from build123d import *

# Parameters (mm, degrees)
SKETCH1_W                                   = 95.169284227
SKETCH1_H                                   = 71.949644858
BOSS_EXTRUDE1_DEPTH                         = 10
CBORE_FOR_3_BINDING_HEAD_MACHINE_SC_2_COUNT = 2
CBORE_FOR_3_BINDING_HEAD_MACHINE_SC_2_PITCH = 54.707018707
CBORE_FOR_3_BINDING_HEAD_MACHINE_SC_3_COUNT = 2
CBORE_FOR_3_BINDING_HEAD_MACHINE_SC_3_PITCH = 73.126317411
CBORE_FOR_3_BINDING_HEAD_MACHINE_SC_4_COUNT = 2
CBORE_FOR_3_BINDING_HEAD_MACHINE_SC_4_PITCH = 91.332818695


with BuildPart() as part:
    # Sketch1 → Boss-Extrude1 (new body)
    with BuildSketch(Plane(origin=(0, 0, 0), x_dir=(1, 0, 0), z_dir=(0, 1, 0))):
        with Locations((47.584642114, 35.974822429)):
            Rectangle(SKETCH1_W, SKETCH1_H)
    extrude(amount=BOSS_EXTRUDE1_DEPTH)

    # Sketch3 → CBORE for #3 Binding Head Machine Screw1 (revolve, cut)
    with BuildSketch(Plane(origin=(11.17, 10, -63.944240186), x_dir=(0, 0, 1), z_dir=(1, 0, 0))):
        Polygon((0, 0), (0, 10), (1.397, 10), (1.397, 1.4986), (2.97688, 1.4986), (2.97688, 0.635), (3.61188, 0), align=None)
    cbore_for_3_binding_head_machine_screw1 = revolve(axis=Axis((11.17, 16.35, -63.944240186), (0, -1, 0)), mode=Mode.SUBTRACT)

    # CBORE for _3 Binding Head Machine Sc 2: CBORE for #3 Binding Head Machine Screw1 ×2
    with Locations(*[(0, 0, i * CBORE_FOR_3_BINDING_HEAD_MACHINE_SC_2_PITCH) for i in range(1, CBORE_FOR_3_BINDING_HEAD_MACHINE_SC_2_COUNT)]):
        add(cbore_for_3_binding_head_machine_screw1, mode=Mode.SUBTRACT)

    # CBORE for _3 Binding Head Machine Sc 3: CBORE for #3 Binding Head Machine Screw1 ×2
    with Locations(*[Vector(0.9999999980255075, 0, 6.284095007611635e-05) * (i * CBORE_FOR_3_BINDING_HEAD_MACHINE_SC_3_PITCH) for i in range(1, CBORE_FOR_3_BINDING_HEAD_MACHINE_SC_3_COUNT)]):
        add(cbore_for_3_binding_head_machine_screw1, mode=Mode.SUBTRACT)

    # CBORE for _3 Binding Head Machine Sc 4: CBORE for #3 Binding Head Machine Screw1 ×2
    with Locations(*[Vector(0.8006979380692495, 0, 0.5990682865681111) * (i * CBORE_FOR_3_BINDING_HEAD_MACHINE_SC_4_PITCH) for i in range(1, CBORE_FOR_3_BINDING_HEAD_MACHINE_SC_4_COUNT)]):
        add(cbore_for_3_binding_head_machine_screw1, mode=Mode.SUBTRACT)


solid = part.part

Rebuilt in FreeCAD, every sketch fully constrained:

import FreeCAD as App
import Part
import Sketcher
Q = App.Units.Quantity


def add_polygon(sketch, points):
    """Adds a closed chain of lines whose ends are joined by coincident constraints."""
    first, n = sketch.GeometryCount, len(points)
    for a, b in zip(points, points[1:] + points[:1]):
        sketch.addGeometry(Part.LineSegment(App.Vector(*a, 0), App.Vector(*b, 0)), False)
    for i in range(n):
        sketch.addConstraint(Sketcher.Constraint("Coincident", first + i, 2, first + (i + 1) % n, 1))

doc = App.newDocument("Part")
body = doc.addObject("PartDesign::Body", "Body")

sketch1 = body.newObject("Sketcher::SketchObject", "Sketch")
sketch1.AttachmentSupport = (doc.getObject("XZ_Plane"), [""])
sketch1.MapMode = "FlatFace"
add_polygon(sketch1, [(0, -71.949645), (0, 0), (95.169284, 0), (95.169284, -71.949645)])
sketch1.addConstraint(Sketcher.Constraint("Vertical", 0))
sketch1.addConstraint(Sketcher.Constraint("Horizontal", 1))
sketch1.addConstraint(Sketcher.Constraint("Vertical", 2))
sketch1.addConstraint(Sketcher.Constraint("Horizontal", 3))
sketch1.addConstraint(Sketcher.Constraint("Coincident", 0, 2, -1, 1))
sketch1.addConstraint(Sketcher.Constraint("DistanceX", 1, 1, 1, 2, Q("95.169284 mm")))
sketch1.addConstraint(Sketcher.Constraint("DistanceY", 0, 1, 0, 2, Q("71.949645 mm")))
pad1 = body.newObject("PartDesign::Pad", "Pad")
pad1.Profile = sketch1
pad1.Length = 10
pad1.Reversed = True

sketch2 = body.newObject("Sketcher::SketchObject", "Sketch001")
sketch2.AttachmentSupport = (doc.getObject("YZ_Plane"), [""])
sketch2.MapMode = "FlatFace"
sketch2.AttachmentOffset = App.Placement(App.Vector(0, 0, 11.17), App.Rotation())
add_polygon(sketch2, [(0, -63.94424), (10, -63.94424), (10, -60.33236), (9.365, -60.96736), (8.5014, -60.96736), (8.5014, -62.54724), (0, -62.54724)])
sketch2.addGeometry(Part.LineSegment(App.Vector(10, -63.94424, 0), App.Vector(0, -63.94424, 0)), True)
sketch2.addConstraint(Sketcher.Constraint("Horizontal", 0))
sketch2.addConstraint(Sketcher.Constraint("Vertical", 1))
sketch2.addConstraint(Sketcher.Constraint("Horizontal", 3))
sketch2.addConstraint(Sketcher.Constraint("Vertical", 4))
sketch2.addConstraint(Sketcher.Constraint("Horizontal", 5))
sketch2.addConstraint(Sketcher.Constraint("Vertical", 6))
sketch2.addConstraint(Sketcher.Constraint("Horizontal", 7))
sketch2.addConstraint(Sketcher.Constraint("Coincident", 7, 1, 0, 2))
sketch2.addConstraint(Sketcher.Constraint("PointOnObject", 5, 2, -2))
sketch2.addConstraint(Sketcher.Constraint("PointOnObject", 7, 2, -2))
sketch2.addConstraint(Sketcher.Constraint("Angle", 2, Q("-135 deg")))
sketch2.addConstraint(Sketcher.Constraint("DistanceX", 3, 2, 3, 1, Q("0.034 in")))
sketch2.addConstraint(Sketcher.Constraint("DistanceY", 6, 2, 6, 1, Q("0.055 in")))
sketch2.addConstraint(Sketcher.Constraint("DistanceY", 1, 1, 1, 2, Q("0.1422 in")))
sketch2.addConstraint(Sketcher.Constraint("DistanceY", 4, 2, 4, 1, Q("0.0622 in")))
sketch2.addConstraint(Sketcher.Constraint("DistanceX", 0, 1, 0, 2, Q("10 mm")))
sketch2.addConstraint(Sketcher.Constraint("DistanceY", 0, 2, -1, 1, Q("63.94424 mm")))
groove = body.newObject("PartDesign::Groove", "Groove")
groove.Profile = sketch2
groove.ReferenceAxis = (sketch2, ["Axis0"])
groove.Angle = 360
doc.recompute()

linearpattern = body.newObject("PartDesign::LinearPattern", "LinearPattern")
linearpattern.Originals = [groove]
linearpattern.Direction = (doc.getObject("Z_Axis"), [""])
linearpattern.Mode = "offset"
linearpattern.Offset = 54.707019
linearpattern.Occurrences = 2
body.Tip = linearpattern
doc.recompute()

datumline = body.newObject("PartDesign::Line", "DatumLine")
datumline.Placement = App.Placement(App.Vector(0, 0, 0), App.Rotation(App.Vector(0, 0, 1), App.Vector(0.999999998, 0, 0.000062841)))
linearpattern2 = body.newObject("PartDesign::LinearPattern", "LinearPattern001")
linearpattern2.Originals = [groove]
linearpattern2.Direction = (datumline, [""])
linearpattern2.Mode = "offset"
linearpattern2.Offset = 73.126317
linearpattern2.Occurrences = 2
body.Tip = linearpattern2
doc.recompute()

datumline2 = body.newObject("PartDesign::Line", "DatumLine001")
datumline2.Placement = App.Placement(App.Vector(0, 0, 0), App.Rotation(App.Vector(0, 0, 1), App.Vector(0.800697938, 0, 0.599068287)))
linearpattern3 = body.newObject("PartDesign::LinearPattern", "LinearPattern002")
linearpattern3.Originals = [groove]
linearpattern3.Direction = (datumline2, [""])
linearpattern3.Mode = "offset"
linearpattern3.Offset = 91.332819
linearpattern3.Occurrences = 2
body.Tip = linearpattern3

doc.recompute()
